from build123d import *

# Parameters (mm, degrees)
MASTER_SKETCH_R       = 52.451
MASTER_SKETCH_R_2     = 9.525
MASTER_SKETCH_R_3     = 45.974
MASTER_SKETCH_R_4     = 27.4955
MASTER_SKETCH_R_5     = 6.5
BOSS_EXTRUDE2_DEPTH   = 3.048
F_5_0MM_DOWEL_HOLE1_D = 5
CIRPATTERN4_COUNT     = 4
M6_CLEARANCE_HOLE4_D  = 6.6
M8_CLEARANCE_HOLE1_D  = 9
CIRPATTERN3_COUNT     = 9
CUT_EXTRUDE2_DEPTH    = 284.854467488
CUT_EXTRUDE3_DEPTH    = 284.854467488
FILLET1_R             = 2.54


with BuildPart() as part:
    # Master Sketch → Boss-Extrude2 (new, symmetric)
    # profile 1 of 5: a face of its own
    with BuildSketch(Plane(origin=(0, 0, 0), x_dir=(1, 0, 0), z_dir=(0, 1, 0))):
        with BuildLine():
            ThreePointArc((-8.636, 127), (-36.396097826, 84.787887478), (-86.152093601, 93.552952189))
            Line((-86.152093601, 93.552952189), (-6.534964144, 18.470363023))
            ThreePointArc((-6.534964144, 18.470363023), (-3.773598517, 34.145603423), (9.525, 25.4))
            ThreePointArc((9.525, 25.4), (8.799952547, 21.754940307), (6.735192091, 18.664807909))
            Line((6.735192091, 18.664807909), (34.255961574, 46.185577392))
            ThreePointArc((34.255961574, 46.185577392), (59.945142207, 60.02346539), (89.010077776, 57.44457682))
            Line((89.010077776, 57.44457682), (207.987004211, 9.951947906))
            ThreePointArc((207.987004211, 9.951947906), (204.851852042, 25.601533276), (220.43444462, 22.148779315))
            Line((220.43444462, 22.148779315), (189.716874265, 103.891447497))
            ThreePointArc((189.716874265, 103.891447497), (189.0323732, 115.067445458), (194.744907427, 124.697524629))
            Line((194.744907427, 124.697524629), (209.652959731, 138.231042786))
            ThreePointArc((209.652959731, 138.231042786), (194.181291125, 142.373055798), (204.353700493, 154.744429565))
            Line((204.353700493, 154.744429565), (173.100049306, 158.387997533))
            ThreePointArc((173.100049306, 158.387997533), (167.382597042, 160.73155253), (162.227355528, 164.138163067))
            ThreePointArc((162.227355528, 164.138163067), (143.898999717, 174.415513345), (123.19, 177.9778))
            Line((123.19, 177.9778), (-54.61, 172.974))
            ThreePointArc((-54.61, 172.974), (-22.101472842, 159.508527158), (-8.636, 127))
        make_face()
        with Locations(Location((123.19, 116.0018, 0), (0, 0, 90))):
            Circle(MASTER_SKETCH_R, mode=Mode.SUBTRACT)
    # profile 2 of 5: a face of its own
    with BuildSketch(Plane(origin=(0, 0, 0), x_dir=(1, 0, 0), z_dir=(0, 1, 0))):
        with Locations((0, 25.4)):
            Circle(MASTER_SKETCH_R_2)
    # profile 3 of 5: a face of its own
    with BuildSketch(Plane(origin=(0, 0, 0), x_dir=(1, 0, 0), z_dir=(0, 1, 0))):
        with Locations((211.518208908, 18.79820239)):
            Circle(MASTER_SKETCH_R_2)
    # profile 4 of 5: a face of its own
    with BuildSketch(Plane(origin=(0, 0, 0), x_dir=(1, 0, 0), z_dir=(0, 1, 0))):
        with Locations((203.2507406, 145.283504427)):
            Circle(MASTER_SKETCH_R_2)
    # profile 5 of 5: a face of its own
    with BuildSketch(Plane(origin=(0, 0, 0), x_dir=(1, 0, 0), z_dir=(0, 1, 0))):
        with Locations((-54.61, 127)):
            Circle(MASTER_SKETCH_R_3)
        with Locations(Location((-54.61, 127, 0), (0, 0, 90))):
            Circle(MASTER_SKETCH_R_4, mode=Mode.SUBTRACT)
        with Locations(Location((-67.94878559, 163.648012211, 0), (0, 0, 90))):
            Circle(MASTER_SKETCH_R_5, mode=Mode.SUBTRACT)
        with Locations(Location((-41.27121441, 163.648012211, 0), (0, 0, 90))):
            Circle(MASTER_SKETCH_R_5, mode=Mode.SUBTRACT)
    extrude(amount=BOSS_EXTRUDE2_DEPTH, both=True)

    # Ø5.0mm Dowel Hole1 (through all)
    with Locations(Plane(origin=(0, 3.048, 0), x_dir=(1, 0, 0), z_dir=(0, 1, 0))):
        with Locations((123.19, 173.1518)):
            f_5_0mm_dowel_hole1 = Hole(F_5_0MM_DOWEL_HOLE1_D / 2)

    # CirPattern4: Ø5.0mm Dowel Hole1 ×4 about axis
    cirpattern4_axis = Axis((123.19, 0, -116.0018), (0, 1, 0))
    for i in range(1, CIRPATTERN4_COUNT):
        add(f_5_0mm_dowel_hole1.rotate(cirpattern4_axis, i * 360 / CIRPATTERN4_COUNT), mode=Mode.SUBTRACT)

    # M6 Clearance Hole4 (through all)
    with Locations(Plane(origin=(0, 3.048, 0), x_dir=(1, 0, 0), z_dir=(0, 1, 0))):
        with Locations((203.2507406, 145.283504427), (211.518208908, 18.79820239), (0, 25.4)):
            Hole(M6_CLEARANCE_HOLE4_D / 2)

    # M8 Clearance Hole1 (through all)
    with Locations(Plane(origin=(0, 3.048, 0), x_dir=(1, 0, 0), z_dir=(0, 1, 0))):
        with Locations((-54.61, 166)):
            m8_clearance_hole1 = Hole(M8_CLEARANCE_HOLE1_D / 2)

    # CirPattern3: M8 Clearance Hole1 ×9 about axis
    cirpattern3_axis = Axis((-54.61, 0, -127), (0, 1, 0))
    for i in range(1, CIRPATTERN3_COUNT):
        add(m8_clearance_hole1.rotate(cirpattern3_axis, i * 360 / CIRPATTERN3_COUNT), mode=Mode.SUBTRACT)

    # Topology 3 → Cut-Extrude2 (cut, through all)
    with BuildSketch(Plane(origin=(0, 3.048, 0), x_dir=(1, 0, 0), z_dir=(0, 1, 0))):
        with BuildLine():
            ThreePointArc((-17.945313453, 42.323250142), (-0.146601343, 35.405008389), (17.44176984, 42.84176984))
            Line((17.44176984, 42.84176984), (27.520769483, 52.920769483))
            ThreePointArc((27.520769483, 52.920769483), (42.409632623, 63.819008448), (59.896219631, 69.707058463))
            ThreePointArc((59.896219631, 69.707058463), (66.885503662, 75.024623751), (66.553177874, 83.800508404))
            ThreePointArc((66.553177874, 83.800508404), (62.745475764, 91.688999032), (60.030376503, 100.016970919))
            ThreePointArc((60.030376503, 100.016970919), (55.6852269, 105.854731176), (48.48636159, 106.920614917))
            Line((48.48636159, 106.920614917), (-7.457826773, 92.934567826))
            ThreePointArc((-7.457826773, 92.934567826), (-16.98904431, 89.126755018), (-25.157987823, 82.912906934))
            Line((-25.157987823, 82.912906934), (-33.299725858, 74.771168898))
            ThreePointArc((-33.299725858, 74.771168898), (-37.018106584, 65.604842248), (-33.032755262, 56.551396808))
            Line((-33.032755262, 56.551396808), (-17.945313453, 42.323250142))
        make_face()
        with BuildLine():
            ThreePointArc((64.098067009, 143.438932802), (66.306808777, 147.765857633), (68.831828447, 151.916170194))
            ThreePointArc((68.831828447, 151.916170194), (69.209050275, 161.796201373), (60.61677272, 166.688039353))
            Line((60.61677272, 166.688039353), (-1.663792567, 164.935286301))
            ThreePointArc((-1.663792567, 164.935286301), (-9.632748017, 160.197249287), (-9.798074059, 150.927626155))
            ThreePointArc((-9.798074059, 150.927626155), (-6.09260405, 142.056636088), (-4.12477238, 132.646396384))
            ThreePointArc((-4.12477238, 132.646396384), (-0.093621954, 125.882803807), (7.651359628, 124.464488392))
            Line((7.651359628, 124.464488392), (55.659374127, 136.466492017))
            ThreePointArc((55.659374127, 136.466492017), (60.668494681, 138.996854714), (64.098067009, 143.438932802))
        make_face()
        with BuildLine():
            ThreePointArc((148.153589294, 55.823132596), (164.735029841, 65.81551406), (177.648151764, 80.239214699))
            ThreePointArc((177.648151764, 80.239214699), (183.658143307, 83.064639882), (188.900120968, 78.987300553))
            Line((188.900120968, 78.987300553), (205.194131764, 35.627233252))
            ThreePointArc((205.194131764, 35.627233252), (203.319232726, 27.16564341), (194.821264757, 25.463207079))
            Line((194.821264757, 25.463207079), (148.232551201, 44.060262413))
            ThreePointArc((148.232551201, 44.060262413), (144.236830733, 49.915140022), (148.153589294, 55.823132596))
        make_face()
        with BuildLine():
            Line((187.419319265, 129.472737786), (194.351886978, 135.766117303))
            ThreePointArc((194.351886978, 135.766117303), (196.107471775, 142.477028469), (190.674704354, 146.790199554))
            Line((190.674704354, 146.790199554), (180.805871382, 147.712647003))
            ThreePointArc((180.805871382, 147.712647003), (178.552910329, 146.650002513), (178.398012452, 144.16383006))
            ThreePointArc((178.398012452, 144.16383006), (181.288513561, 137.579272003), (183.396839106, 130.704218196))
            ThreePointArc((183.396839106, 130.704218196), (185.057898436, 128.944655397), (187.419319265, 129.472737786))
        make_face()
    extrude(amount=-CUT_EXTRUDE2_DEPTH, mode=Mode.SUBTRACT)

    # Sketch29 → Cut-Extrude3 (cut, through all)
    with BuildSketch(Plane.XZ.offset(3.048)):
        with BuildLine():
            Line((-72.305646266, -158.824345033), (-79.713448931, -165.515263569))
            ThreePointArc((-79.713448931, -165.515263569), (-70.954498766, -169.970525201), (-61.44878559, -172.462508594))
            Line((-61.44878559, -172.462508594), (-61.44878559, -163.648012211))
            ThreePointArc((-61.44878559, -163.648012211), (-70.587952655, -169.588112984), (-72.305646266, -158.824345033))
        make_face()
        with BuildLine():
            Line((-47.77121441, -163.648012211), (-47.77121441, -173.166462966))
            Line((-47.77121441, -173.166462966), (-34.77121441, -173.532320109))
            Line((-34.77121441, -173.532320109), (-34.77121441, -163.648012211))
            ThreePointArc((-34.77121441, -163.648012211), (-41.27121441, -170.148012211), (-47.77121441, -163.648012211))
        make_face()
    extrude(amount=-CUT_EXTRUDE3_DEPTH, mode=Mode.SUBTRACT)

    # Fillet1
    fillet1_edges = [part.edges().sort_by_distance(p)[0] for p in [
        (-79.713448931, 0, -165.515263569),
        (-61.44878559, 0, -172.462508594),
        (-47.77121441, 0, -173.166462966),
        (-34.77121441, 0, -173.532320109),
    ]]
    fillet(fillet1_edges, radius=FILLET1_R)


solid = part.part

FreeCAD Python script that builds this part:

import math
import FreeCAD as App
import Part
import Sketcher
from FreeCAD import Vector
Q = App.Units.Quantity


def edges_at(feature, points):
    """Names of the edges that pass closest to the given points."""
    edges = feature.Shape.Edges
    near = lambda p: min(range(len(edges)), key=lambda i: edges[i].distToShape(Part.Vertex(*p))[0])
    return sorted({f"Edge{near(p) + 1}" for p in points})

doc = App.newDocument("Part")
body = doc.addObject("PartDesign::Body", "Body")

# Sketch on XZ plane
sketch1 = doc.addObject("Sketcher::SketchObject", "Sketch")
body.addObject(sketch1)
sketch1.AttachmentSupport = (doc.XZ_Plane, [""])
sketch1.MapMode = "FlatFace"
sketch1.addGeometry(Part.LineSegment(Vector(-86, -94, 0), Vector(-7, -18, 0)), False)
sketch1.addGeometry(Part.ArcOfCircle(Part.Circle(Vector(0, -25, 0), Vector(0, 0, 1), 10), math.radians(45), math.radians(133)), False)
sketch1.addGeometry(Part.LineSegment(Vector(7, -19, 0), Vector(34, -46, 0)), False)
sketch1.addGeometry(Part.ArcOfCircle(Part.Circle(Vector(70, -10, 0), Vector(0, 0, 1), 51), math.radians(-135), math.radians(-68)), False)
sketch1.addGeometry(Part.LineSegment(Vector(89, -57, 0), Vector(208, -10, 0)), False)
sketch1.addGeometry(Part.ArcOfCircle(Part.Circle(Vector(212, -19, 0), Vector(0, 0, 1), 10), math.radians(-21), math.radians(112)), False)
sketch1.addGeometry(Part.LineSegment(Vector(220, -22, 0), Vector(190, -104, 0)), False)
sketch1.addGeometry(Part.ArcOfCircle(Part.Circle(Vector(208, -111, 0), Vector(0, 0, 1), 19), math.radians(159), math.radians(228)), False)
sketch1.addGeometry(Part.LineSegment(Vector(195, -125, 0), Vector(210, -138, 0)), False)
sketch1.addGeometry(Part.ArcOfCircle(Part.Circle(Vector(203, -145, 0), Vector(0, 0, 1), 10), math.radians(-83), math.radians(48)), False)
sketch1.addGeometry(Part.LineSegment(Vector(204, -155, 0), Vector(173, -158, 0)), False)
sketch1.addGeometry(Part.ArcOfCircle(Part.Circle(Vector(182, -189, 0), Vector(0, 0, 1), 32), math.radians(107), math.radians(129)), False)
sketch1.addGeometry(Part.ArcOfCircle(Part.Circle(Vector(123, -116, 0), Vector(0, 0, 1), 62), math.radians(-90), math.radians(-51)), False)
sketch1.addGeometry(Part.LineSegment(Vector(123, -178, 0), Vector(-55, -173, 0)), False)
sketch1.addGeometry(Part.ArcOfCircle(Part.Circle(Vector(-55, -127, 0), Vector(0, 0, 1), 46), math.radians(133), math.radians(270)), False)
sketch1.addGeometry(Part.Circle(Vector(123, -116, 0), Vector(0, 0, 1), 52), False)
sketch1.addGeometry(Part.Circle(Vector(-68, -164, 0), Vector(0, 0, 1), 6), False)
sketch1.addGeometry(Part.Circle(Vector(-41, -164, 0), Vector(0, 0, 1), 6), False)
sketch1.addGeometry(Part.Circle(Vector(-55, -127, 0), Vector(0, 0, 1), 27), False)
sketch1.addConstraint(Sketcher.Constraint("Tangent", 0, 2, 1, 2))
sketch1.addConstraint(Sketcher.Constraint("Tangent", 1, 1, 2, 1))
sketch1.addConstraint(Sketcher.Constraint("Tangent", 2, 2, 3, 1))
sketch1.addConstraint(Sketcher.Constraint("Tangent", 3, 2, 4, 1))
sketch1.addConstraint(Sketcher.Constraint("Tangent", 4, 2, 5, 2))
sketch1.addConstraint(Sketcher.Constraint("Tangent", 5, 1, 6, 1))
sketch1.addConstraint(Sketcher.Constraint("Tangent", 6, 2, 7, 1))
sketch1.addConstraint(Sketcher.Constraint("Tangent", 7, 2, 8, 1))
sketch1.addConstraint(Sketcher.Constraint("Tangent", 8, 2, 9, 2))
sketch1.addConstraint(Sketcher.Constraint("Tangent", 9, 1, 10, 1))
sketch1.addConstraint(Sketcher.Constraint("Coincident", 10, 2, 11, 1))
sketch1.addConstraint(Sketcher.Constraint("Tangent", 11, 2, 12, 2))
sketch1.addConstraint(Sketcher.Constraint("Coincident", 12, 1, 13, 1))
sketch1.addConstraint(Sketcher.Constraint("Coincident", 13, 2, 14, 2))
sketch1.addConstraint(Sketcher.Constraint("Tangent", 14, 1, 0, 1))
sketch1.addConstraint(Sketcher.Constraint("Coincident", 15, 3, 12, 3))
sketch1.addConstraint(Sketcher.Constraint("Coincident", 18, 3, 14, 3))
sketch1.addConstraint(Sketcher.Constraint("Equal", 1, 5))
sketch1.addConstraint(Sketcher.Constraint("Equal", 5, 9))
sketch1.addConstraint(Sketcher.Constraint("Equal", 16, 17))
sketch1.addConstraint(Sketcher.Constraint("PointOnObject", 1, 3, -2))
sketch1.addConstraint(Sketcher.Constraint("Horizontal", 16, 3, 17, 3))
sketch1.addConstraint(Sketcher.Constraint("Vertical", 15, 3, 12, 1))
sketch1.addConstraint(Sketcher.Constraint("Vertical", 18, 3, 13, 2))
sketch1.addConstraint(Sketcher.Constraint("Radius", 3, Q("2 in")))
sketch1.addConstraint(Sketcher.Constraint("Diameter", 15, Q("4.13 in")))
sketch1.addConstraint(Sketcher.Constraint("Radius", 7, Q("0.75 in")))
sketch1.addConstraint(Sketcher.Constraint("Radius", 11, Q("1.25 in")))
sketch1.addConstraint(Sketcher.Constraint("Radius", 12, Q("2.44 in")))
sketch1.addConstraint(Sketcher.Constraint("Radius", 14, Q("1.81 in")))
sketch1.addConstraint(Sketcher.Constraint("Diameter", 18, Q("2.165 in")))
sketch1.addConstraint(Sketcher.Constraint("DistanceY", 1, 3, -1, 1, Q("1 in")))
sketch1.addConstraint(Sketcher.Constraint("DistanceY", 14, 3, -1, 1, Q("5 in")))
sketch1.addConstraint(Sketcher.Constraint("Angle", 2, Q("-45 deg")))
sketch1.addConstraint(Sketcher.Constraint("Radius", 1, Q("0.375 in")))
sketch1.addConstraint(Sketcher.Constraint("DistanceX", 14, 3, 12, 3, Q("7 in")))
sketch1.addConstraint(Sketcher.Constraint("Diameter", 16, 13.0))
sketch1.addConstraint(Sketcher.Constraint("DistanceX", -1, 1, 12, 3, Q("4.85 in")))
sketch1.addConstraint(Sketcher.Constraint("DistanceY", 12, 3, -1, 1, Q("4.567 in")))
sketch1.addConstraint(Sketcher.Constraint("Distance", 8, 20.1347))
sketch1.addConstraint(Sketcher.Constraint("DistanceY", 7, 3, -1, 1, 110.592601))
sketch1.addConstraint(Sketcher.Constraint("DistanceX", -1, 1, 11, 3, 182.226001))
sketch1.addConstraint(Sketcher.Constraint("DistanceX", -1, 1, 9, 1, 204.3537))
sketch1.addConstraint(Sketcher.Constraint("DistanceY", 7, 3, 5, 3, 91.794399))
sketch1.addConstraint(Sketcher.Constraint("DistanceY", 3, 2, 2, 2, 11.258999))
sketch1.addConstraint(Sketcher.Constraint("DistanceX", 7, 3, 5, 1, 12.885099))
sketch1.addConstraint(Sketcher.Constraint("Distance", 10, 31.465319))
sketch1.addConstraint(Sketcher.Constraint("DistanceX", -1, 1, 5, 3, 211.518209))
sketch1.addConstraint(Sketcher.Constraint("DistanceX", 16, 3, 3, 3, 138.125772))
sketch1.addConstraint(Sketcher.Constraint("DistanceY", 16, 3, 3, 3, 153.383459))
sketch1.addConstraint(Sketcher.Constraint("DistanceX", 16, 3, 17, 3, 26.677571))
pad1 = doc.addObject("PartDesign::Pad", "Pad")
body.addObject(pad1)
pad1.Profile = sketch1
pad1.Length = Q("0.24 in")
pad1.Midplane = True

# Sketch on XZ plane
sketch2 = doc.addObject("Sketcher::SketchObject", "Sketch001")
body.addObject(sketch2)
sketch2.AttachmentSupport = (doc.XZ_Plane, [""])
sketch2.MapMode = "FlatFace"
sketch2.AttachmentOffset = App.Placement(Vector(0, 0, -0.12 * 25.4), App.Rotation())
sketch2.addGeometry(Part.Circle(Vector(123.2, -173.2, 0), Vector(0, 0, 1), 2.5), False)
sketch2.addConstraint(Sketcher.Constraint("Diameter", 0, 5.0))
sketch2.addConstraint(Sketcher.Constraint("DistanceX", -1, 1, 0, 3, Q("4.85 in")))
sketch2.addConstraint(Sketcher.Constraint("DistanceY", 0, 3, -1, 1, Q("6.817 in")))
doc.recompute()
hole = doc.addObject("PartDesign::Hole", "Hole")
body.addObject(hole)
hole.Profile = sketch2
hole.ThreadType = "None"
hole.Diameter = 5
hole.DepthType = "ThroughAll"
hole.Reversed = True
doc.recompute()

datumline = doc.addObject("PartDesign::Line", "DatumLine")
body.addObject(datumline)
datumline.Placement = App.Placement(Vector(123.19, 0, -116.0018), App.Rotation(Vector(0, 0, 1), Vector(0, 1, 0)))
polarpattern = doc.addObject("PartDesign::PolarPattern", "PolarPattern")
body.addObject(polarpattern)
polarpattern.Originals = [hole]
polarpattern.Axis = (datumline, [""])
polarpattern.Angle = 360
polarpattern.Occurrences = 4
body.Tip = polarpattern

# Sketch on XZ plane
sketch3 = doc.addObject("Sketcher::SketchObject", "Sketch002")
body.addObject(sketch3)
sketch3.AttachmentSupport = (doc.XZ_Plane, [""])
sketch3.MapMode = "FlatFace"
sketch3.AttachmentOffset = App.Placement(Vector(0, 0, -0.12 * 25.4), App.Rotation())
sketch3.addGeometry(Part.Circle(Vector(203.3, -145.3, 0), Vector(0, 0, 1), 3.3), False)
sketch3.addGeometry(Part.Circle(Vector(211.5, -18.8, 0), Vector(0, 0, 1), 3.3), False)
sketch3.addGeometry(Part.Circle(Vector(0, -25.4, 0), Vector(0, 0, 1), 3.3), False)
sketch3.addConstraint(Sketcher.Constraint("Equal", 0, 1))
sketch3.addConstraint(Sketcher.Constraint("Equal", 1, 2))
sketch3.addConstraint(Sketcher.Constraint("PointOnObject", 2, 3, -2))
sketch3.addConstraint(Sketcher.Constraint("DistanceY", 2, 3, -1, 1, Q("1 in")))
sketch3.addConstraint(Sketcher.Constraint("Diameter", 0, 6.6))
sketch3.addConstraint(Sketcher.Constraint("DistanceX", -1, 1, 0, 3, 203.250741))
sketch3.addConstraint(Sketcher.Constraint("DistanceX", -1, 1, 1, 3, 211.518209))
sketch3.addConstraint(Sketcher.Constraint("DistanceY", 0, 3, -1, 1, 145.283504))
sketch3.addConstraint(Sketcher.Constraint("DistanceY", 1, 3, -1, 1, 18.798202))
doc.recompute()
hole2 = doc.addObject("PartDesign::Hole", "Hole001")
body.addObject(hole2)
hole2.Profile = sketch3
hole2.ThreadType = "None"
hole2.Diameter = 6.6
hole2.DepthType = "ThroughAll"
hole2.Reversed = True

# Sketch on XZ plane
sketch4 = doc.addObject("Sketcher::SketchObject", "Sketch003")
body.addObject(sketch4)
sketch4.AttachmentSupport = (doc.XZ_Plane, [""])
sketch4.MapMode = "FlatFace"
sketch4.AttachmentOffset = App.Placement(Vector(0, 0, -0.12 * 25.4), App.Rotation())
sketch4.addGeometry(Part.Circle(Vector(-54.6, -166, 0), Vector(0, 0, 1), 4.5), False)
sketch4.addConstraint(Sketcher.Constraint("Diameter", 0, 9.0))
sketch4.addConstraint(Sketcher.Constraint("DistanceX", 0, 3, -1, 1, Q("2.15 in")))
sketch4.addConstraint(Sketcher.Constraint("DistanceY", 0, 3, -1, 1, 166.0))
doc.recompute()
hole3 = doc.addObject("PartDesign::Hole", "Hole002")
body.addObject(hole3)
hole3.Profile = sketch4
hole3.ThreadType = "None"
hole3.Diameter = 9
hole3.DepthType = "ThroughAll"
hole3.Reversed = True
doc.recompute()

datumline2 = doc.addObject("PartDesign::Line", "DatumLine001")
body.addObject(datumline2)
datumline2.Placement = App.Placement(Vector(-54.61, 0, -127), App.Rotation(Vector(0, 0, 1), Vector(0, 1, 0)))
polarpattern2 = doc.addObject("PartDesign::PolarPattern", "PolarPattern001")
body.addObject(polarpattern2)
polarpattern2.Originals = [hole3]
polarpattern2.Axis = (datumline2, [""])
polarpattern2.Angle = 360
polarpattern2.Occurrences = 9
body.Tip = polarpattern2

# Sketch on XZ plane
sketch5 = doc.addObject("Sketcher::SketchObject", "Sketch004")
body.addObject(sketch5)
sketch5.AttachmentSupport = (doc.XZ_Plane, [""])
sketch5.MapMode = "FlatFace"
sketch5.AttachmentOffset = App.Placement(Vector(0, 0, -0.12 * 25.4), App.Rotation())
sketch5.addGeometry(Part.ArcOfCircle(Part.Circle(Vector(-0.5, -60.8, 0), Vector(0, 0, 1), 25.4), math.radians(45), math.radians(133)), False)
sketch5.addGeometry(Part.LineSegment(Vector(17.4, -42.8, 0), Vector(27.5, -52.9, 0)), False)
sketch5.addGeometry(Part.ArcOfCircle(Part.Circle(Vector(70.2, -10.3, 0), Vector(0, 0, 1), 60.3), math.radians(-135), math.radians(-100)), False)
sketch5.addGeometry(Part.ArcOfCircle(Part.Circle(Vector(58.3, -79.1, 0), Vector(0, 0, 1), 9.5), math.radians(-30), math.radians(80)), False)
sketch5.addGeometry(Part.ArcOfCircle(Part.Circle(Vector(123.2, -116, 0), Vector(0, 0, 1), 65.2), math.radians(150.38), math.radians(165.8)), False)
sketch5.addGeometry(Part.ArcOfCircle(Part.Circle(Vector(50.8, -97.7, 0), Vector(0, 0, 1), 9.5), math.radians(-104), math.radians(-14)), False)
sketch5.addGeometry(Part.LineSegment(Vector(48.5, -106.9, 0), Vector(-7.5, -92.9, 0)), False)
sketch5.addGeometry(Part.ArcOfCircle(Part.Circle(Vector(1.8, -56, 0), Vector(0, 0, 1), 38.1), math.radians(-135), math.radians(-104)), False)
sketch5.addGeometry(Part.LineSegment(Vector(-25.2, -82.9, 0), Vector(-33.3, -74.8, 0)), False)
sketch5.addGeometry(Part.ArcOfCircle(Part.Circle(Vector(-24.3, -65.8, 0), Vector(0, 0, 1), 12.7), math.radians(133), math.radians(225)), False)
sketch5.addGeometry(Part.LineSegment(Vector(-33, -56.6, 0), Vector(-17.9, -42.3, 0)), False)
sketch5.addGeometry(Part.ArcOfCircle(Part.Circle(Vector(123.2, -116, 0), Vector(0, 0, 1), 65.2), math.radians(-155.09), math.radians(-146.55)), False)
sketch5.addGeometry(Part.ArcOfCircle(Part.Circle(Vector(60.9, -157.2, 0), Vector(0, 0, 1), 9.5), math.radians(-92), math.radians(33)), False)
sketch5.addGeometry(Part.LineSegment(Vector(60.6, -166.7, 0), Vector(-1.7, -164.9, 0)), False)
sketch5.addGeometry(Part.ArcOfCircle(Part.Circle(Vector(-1.4, -155.4, 0), Vector(0, 0, 1), 9.5), math.radians(152), math.radians(268)), False)
sketch5.addGeometry(Part.ArcOfCircle(Part.Circle(Vector(-54.6, -127, 0), Vector(0, 0, 1), 50.8), math.radians(-28), math.radians(-6)), False)
sketch5.addGeometry(Part.ArcOfCircle(Part.Circle(Vector(5.3, -133.7, 0), Vector(0, 0, 1), 9.5), math.radians(76), math.radians(174)), False)
sketch5.addGeometry(Part.LineSegment(Vector(7.7, -124.5, 0), Vector(55.7, -136.5, 0)), False)
sketch5.addGeometry(Part.ArcOfCircle(Part.Circle(Vector(52.6, -148.8, 0), Vector(0, 0, 1), 12.7), math.radians(25), math.radians(76)), False)
sketch5.addGeometry(Part.ArcOfCircle(Part.Circle(Vector(123.2, -116, 0), Vector(0, 0, 1), 65.2), math.radians(33), math.radians(67)), False)
sketch5.addGeometry(Part.ArcOfCircle(Part.Circle(Vector(150.6, -50, 0), Vector(0, 0, 1), 6.4), math.radians(112), math.radians(247)), False)
sketch5.addGeometry(Part.LineSegment(Vector(148.2, -44.1, 0), Vector(194.8, -25.5, 0)), False)
sketch5.addGeometry(Part.ArcOfCircle(Part.Circle(Vector(197.8, -32.8, 0), Vector(0, 0, 1), 7.9), math.radians(-21), math.radians(112)), False)
sketch5.addGeometry(Part.LineSegment(Vector(205.2, -35.6, 0), Vector(188.9, -79, 0)), False)
sketch5.addGeometry(Part.ArcOfCircle(Part.Circle(Vector(183, -76.8, 0), Vector(0, 0, 1), 6.3), math.radians(-147), math.radians(-21)), False)
sketch5.addGeometry(Part.LineSegment(Vector(187.4, -129.5, 0), Vector(194.4, -135.8, 0)), False)
sketch5.addGeometry(Part.ArcOfCircle(Part.Circle(Vector(190.1, -140.5, 0), Vector(0, 0, 1), 6.3), math.radians(-85), math.radians(48)), False)
sketch5.addGeometry(Part.LineSegment(Vector(190.7, -146.8, 0), Vector(180.8, -147.7, 0)), False)
sketch5.addGeometry(Part.ArcOfCircle(Part.Circle(Vector(180.6, -145.3, 0), Vector(0, 0, 1), 2.4), math.radians(153), math.radians(275)), False)
sketch5.addGeometry(Part.ArcOfCircle(Part.Circle(Vector(123.2, -116, 0), Vector(0, 0, 1), 62), math.radians(-27.03), math.radians(-13.72)), False)
sketch5.addGeometry(Part.ArcOfCircle(Part.Circle(Vector(185.8, -131.3, 0), Vector(0, 0, 1), 2.4), math.radians(48), math.radians(166)), False)
sketch5.addConstraint(Sketcher.Constraint("Tangent", 0, 1, 1, 1))
sketch5.addConstraint(Sketcher.Constraint("Tangent", 1, 2, 2, 1))
sketch5.addConstraint(Sketcher.Constraint("Tangent", 2, 2, 3, 2))
sketch5.addConstraint(Sketcher.Constraint("Tangent", 3, 1, 4, 1))
sketch5.addConstraint(Sketcher.Constraint("Tangent", 4, 2, 5, 2))
sketch5.addConstraint(Sketcher.Constraint("Tangent", 5, 1, 6, 1))
sketch5.addConstraint(Sketcher.Constraint("Tangent", 6, 2, 7, 2))
sketch5.addConstraint(Sketcher.Constraint("Tangent", 7, 1, 8, 1))
sketch5.addConstraint(Sketcher.Constraint("Tangent", 8, 2, 9, 2))
sketch5.addConstraint(Sketcher.Constraint("Tangent", 9, 1, 10, 1))
sketch5.addConstraint(Sketcher.Constraint("Tangent", 10, 2, 0, 2))
sketch5.addConstraint(Sketcher.Constraint("Tangent", 11, 2, 12, 2))
sketch5.addConstraint(Sketcher.Constraint("Tangent", 12, 1, 13, 1))
sketch5.addConstraint(Sketcher.Constraint("Tangent", 13, 2, 14, 2))
sketch5.addConstraint(Sketcher.Constraint("Tangent", 14, 1, 15, 1))
sketch5.addConstraint(Sketcher.Constraint("Tangent", 15, 2, 16, 2))
sketch5.addConstraint(Sketcher.Constraint("Tangent", 16, 1, 17, 1))
sketch5.addConstraint(Sketcher.Constraint("Tangent", 17, 2, 18, 2))
sketch5.addConstraint(Sketcher.Constraint("Tangent", 18, 1, 11, 1))
sketch5.addConstraint(Sketcher.Constraint("Tangent", 19, 2, 20, 2))
sketch5.addConstraint(Sketcher.Constraint("Tangent", 20, 1, 21, 1))
sketch5.addConstraint(Sketcher.Constraint("Tangent", 21, 2, 22, 2))
sketch5.addConstraint(Sketcher.Constraint("Tangent", 22, 1, 23, 1))
sketch5.addConstraint(Sketcher.Constraint("Tangent", 23, 2, 24, 2))
sketch5.addConstraint(Sketcher.Constraint("Tangent", 24, 1, 19, 1))
sketch5.addConstraint(Sketcher.Constraint("Tangent", 25, 2, 26, 2))
sketch5.addConstraint(Sketcher.Constraint("Tangent", 26, 1, 27, 1))
sketch5.addConstraint(Sketcher.Constraint("Tangent", 27, 2, 28, 2))
sketch5.addConstraint(Sketcher.Constraint("Tangent", 28, 1, 29, 1))
sketch5.addConstraint(Sketcher.Constraint("Tangent", 29, 2, 30, 2))
sketch5.addConstraint(Sketcher.Constraint("Tangent", 30, 1, 25, 1))
sketch5.addConstraint(Sketcher.Constraint("Coincident", 11, 3, 4, 3))
sketch5.addConstraint(Sketcher.Constraint("Coincident", 19, 3, 4, 3))
sketch5.addConstraint(Sketcher.Constraint("Coincident", 29, 3, 4, 3))
sketch5.addConstraint(Sketcher.Constraint("Equal", 3, 5))
sketch5.addConstraint(Sketcher.Constraint("Equal", 4, 11))
sketch5.addConstraint(Sketcher.Constraint("Equal", 5, 12))
sketch5.addConstraint(Sketcher.Constraint("Equal", 12, 14))
sketch5.addConstraint(Sketcher.Constraint("Equal", 14, 16))
sketch5.addConstraint(Sketcher.Constraint("Equal", 9, 18))
sketch5.addConstraint(Sketcher.Constraint("Equal", 11, 19))
sketch5.addConstraint(Sketcher.Constraint("Equal", 20, 24))
sketch5.addConstraint(Sketcher.Constraint("Equal", 24, 26))
sketch5.addConstraint(Sketcher.Constraint("Equal", 28, 30))
sketch5.addConstraint(Sketcher.Constraint("Parallel", 1, 8))
sketch5.addConstraint(Sketcher.Constraint("Parallel", 6, 17))
sketch5.addConstraint(Sketcher.Constraint("Radius", 0, Q("1 in")))
sketch5.addConstraint(Sketcher.Constraint("Radius", 15, Q("2 in")))
sketch5.addConstraint(Sketcher.Constraint("Radius", 7, Q("1.5 in")))
sketch5.addConstraint(Sketcher.Constraint("Radius", 9, Q("0.5 in")))
sketch5.addConstraint(Sketcher.Constraint("Radius", 20, Q("0.25 in")))
sketch5.addConstraint(Sketcher.Constraint("Radius", 29, Q("2.44 in")))
sketch5.addConstraint(Sketcher.Constraint("DistanceY", 15, 3, -1, 1, Q("5 in")))
sketch5.addConstraint(Sketcher.Constraint("Angle", 1, Q("-45 deg")))
sketch5.addConstraint(Sketcher.Constraint("Radius", 2, Q("2.375 in")))
sketch5.addConstraint(Sketcher.Constraint("Radius", 3, Q("0.375 in")))
sketch5.addConstraint(Sketcher.Constraint("Radius", 4, Q("2.565 in")))
sketch5.addConstraint(Sketcher.Constraint("Radius", 22, Q("0.3125 in")))
sketch5.addConstraint(Sketcher.Constraint("DistanceX", -1, 1, 4, 3, Q("4.85 in")))
sketch5.addConstraint(Sketcher.Constraint("DistanceX", 15, 3, -1, 1, Q("2.15 in")))
sketch5.addConstraint(Sketcher.Constraint("DistanceY", 4, 3, -1, 1, Q("4.567 in")))
sketch5.addConstraint(Sketcher.Constraint("DistanceY", 12, 3, 5, 3, Q("2.3420001 in")))
sketch5.addConstraint(Sketcher.Constraint("Radius", 28, 2.447355))
sketch5.addConstraint(Sketcher.Constraint("DistanceX", 18, 3, 18, 1, Q("0.4534998 in")))
sketch5.addConstraint(Sketcher.Constraint("DistanceY", 30, 3, -1, 1, 131.284798))
sketch5.addConstraint(Sketcher.Constraint("DistanceY", 23, 2, -1, 1, 78.987301))
sketch5.addConstraint(Sketcher.Constraint("DistanceY", 26, 1, -1, 1, 146.7902))
sketch5.addConstraint(Sketcher.Constraint("DistanceX", 2, 3, 20, 3, 80.409702))
sketch5.addConstraint(Sketcher.Constraint("DistanceX", 0, 1, 1, 2, 10.079))
sketch5.addConstraint(Sketcher.Constraint("DistanceY", 5, 3, 3, 1, 13.879499))
sketch5.addConstraint(Sketcher.Constraint("DistanceX", 4, 2, 3, 1, 6.522801))
sketch5.addConstraint(Sketcher.Constraint("DistanceY", 6, 2, 1, 2, 40.013798))
sketch5.addConstraint(Sketcher.Constraint("DistanceX", 8, 2, 6, 2, 25.841899))
sketch5.addConstraint(Sketcher.Constraint("DistanceY", 6, 2, 8, 2, 18.163399))
sketch5.addConstraint(Sketcher.Constraint("DistanceX", 18, 3, 12, 1, 8.037601))
sketch5.addConstraint(Sketcher.Constraint("DistanceX", 24, 3, 21, 2, 11.865301))
sketch5.addConstraint(Sketcher.Constraint("DistanceX", 20, 1, 24, 1, 29.415601))
sketch5.addConstraint(Sketcher.Constraint("DistanceX", 29, 2, 26, 3, 6.686902))
sketch5.addConstraint(Sketcher.Constraint("Distance", 6, 57.665949))
sketch5.addConstraint(Sketcher.Constraint("Distance", 27, 9.91185))
pocket1 = doc.addObject("PartDesign::Pocket", "Pocket")
body.addObject(pocket1)
pocket1.Profile = sketch5
pocket1.Type = "ThroughAll"
pocket1.Reversed = True

# Sketch on XZ plane
sketch6 = doc.addObject("Sketcher::SketchObject", "Sketch005")
body.addObject(sketch6)
sketch6.AttachmentSupport = (doc.XZ_Plane, [""])
sketch6.MapMode = "FlatFace"
sketch6.AttachmentOffset = App.Placement(Vector(0, 0, 0.12 * 25.4), App.Rotation())
sketch6.addGeometry(Part.LineSegment(Vector(-72, -159, 0), Vector(-80, -166, 0)), False)
sketch6.addGeometry(Part.ArcOfCircle(Part.Circle(Vector(-55, -127, 0), Vector(0, 0, 1), 46), math.radians(-123), math.radians(-99)), False)
sketch6.addGeometry(Part.LineSegment(Vector(-61, -172, 0), Vector(-61, -164, 0)), False)
sketch6.addGeometry(Part.ArcOfCircle(Part.Circle(Vector(-68, -164, 0), Vector(0, 0, 1), 6), math.radians(132), math.radians(360)), False)
sketch6.addGeometry(Part.LineSegment(Vector(-48, -164, 0), Vector(-48, -173, 0)), False)
sketch6.addGeometry(Part.LineSegment(Vector(-48, -173, 0), Vector(-35, -174, 0)), False)
sketch6.addGeometry(Part.LineSegment(Vector(-35, -174, 0), Vector(-35, -164, 0)), False)
sketch6.addGeometry(Part.ArcOfCircle(Part.Circle(Vector(-41, -164, 0), Vector(0, 0, 1), 6), math.radians(180), math.radians(360)), False)
sketch6.addConstraint(Sketcher.Constraint("Coincident", 0, 2, 1, 1))
sketch6.addConstraint(Sketcher.Constraint("Coincident", 1, 2, 2, 1))
sketch6.addConstraint(Sketcher.Constraint("Tangent", 2, 2, 3, 2))
sketch6.addConstraint(Sketcher.Constraint("Tangent", 3, 1, 0, 1))
sketch6.addConstraint(Sketcher.Constraint("Coincident", 4, 2, 5, 1))
sketch6.addConstraint(Sketcher.Constraint("Coincident", 5, 2, 6, 1))
sketch6.addConstraint(Sketcher.Constraint("Tangent", 6, 2, 7, 2))
sketch6.addConstraint(Sketcher.Constraint("Tangent", 7, 1, 4, 1))
sketch6.addConstraint(Sketcher.Constraint("Vertical", 2))
sketch6.addConstraint(Sketcher.Constraint("Vertical", 4))
sketch6.addConstraint(Sketcher.Constraint("Vertical", 6))
sketch6.addConstraint(Sketcher.Constraint("Equal", 3, 7))
sketch6.addConstraint(Sketcher.Constraint("Horizontal", 3, 3, 7, 3))
sketch6.addConstraint(Sketcher.Constraint("Radius", 1, Q("1.81 in")))
sketch6.addConstraint(Sketcher.Constraint("DistanceY", 1, 3, -1, 1, Q("5 in")))
sketch6.addConstraint(Sketcher.Constraint("DistanceX", 1, 3, -1, 1, Q("2.15 in")))
sketch6.addConstraint(Sketcher.Constraint("Radius", 3, 6.5))
sketch6.addConstraint(Sketcher.Constraint("DistanceY", 4, 2, 4, 1, 9.518451))
sketch6.addConstraint(Sketcher.Constraint("Distance", 0, 9.982181))
sketch6.addConstraint(Sketcher.Constraint("DistanceY", 2, 1, 2, 2, 8.814496))
sketch6.addConstraint(Sketcher.Constraint("DistanceY", 6, 1, 6, 2, 9.884308))
sketch6.addConstraint(Sketcher.Constraint("DistanceX", 0, 2, -1, 1, 79.713449))
sketch6.addConstraint(Sketcher.Constraint("DistanceX", 3, 3, 7, 3, 26.677571))
pocket2 = doc.addObject("PartDesign::Pocket", "Pocket001")
body.addObject(pocket2)
pocket2.Profile = sketch6
pocket2.Type = "ThroughAll"
doc.recompute()

fillet = doc.addObject("PartDesign::Fillet", "Fillet")
body.addObject(fillet)
fillet.Base = (pocket2, edges_at(pocket2, [
    (-79.713, 0, -165.515),
    (-61.449, 0, -172.463),
    (-47.771, 0, -173.166),
    (-34.771, 0, -173.532),
]))
fillet.Radius = Q("0.1 in")

doc.recompute()
